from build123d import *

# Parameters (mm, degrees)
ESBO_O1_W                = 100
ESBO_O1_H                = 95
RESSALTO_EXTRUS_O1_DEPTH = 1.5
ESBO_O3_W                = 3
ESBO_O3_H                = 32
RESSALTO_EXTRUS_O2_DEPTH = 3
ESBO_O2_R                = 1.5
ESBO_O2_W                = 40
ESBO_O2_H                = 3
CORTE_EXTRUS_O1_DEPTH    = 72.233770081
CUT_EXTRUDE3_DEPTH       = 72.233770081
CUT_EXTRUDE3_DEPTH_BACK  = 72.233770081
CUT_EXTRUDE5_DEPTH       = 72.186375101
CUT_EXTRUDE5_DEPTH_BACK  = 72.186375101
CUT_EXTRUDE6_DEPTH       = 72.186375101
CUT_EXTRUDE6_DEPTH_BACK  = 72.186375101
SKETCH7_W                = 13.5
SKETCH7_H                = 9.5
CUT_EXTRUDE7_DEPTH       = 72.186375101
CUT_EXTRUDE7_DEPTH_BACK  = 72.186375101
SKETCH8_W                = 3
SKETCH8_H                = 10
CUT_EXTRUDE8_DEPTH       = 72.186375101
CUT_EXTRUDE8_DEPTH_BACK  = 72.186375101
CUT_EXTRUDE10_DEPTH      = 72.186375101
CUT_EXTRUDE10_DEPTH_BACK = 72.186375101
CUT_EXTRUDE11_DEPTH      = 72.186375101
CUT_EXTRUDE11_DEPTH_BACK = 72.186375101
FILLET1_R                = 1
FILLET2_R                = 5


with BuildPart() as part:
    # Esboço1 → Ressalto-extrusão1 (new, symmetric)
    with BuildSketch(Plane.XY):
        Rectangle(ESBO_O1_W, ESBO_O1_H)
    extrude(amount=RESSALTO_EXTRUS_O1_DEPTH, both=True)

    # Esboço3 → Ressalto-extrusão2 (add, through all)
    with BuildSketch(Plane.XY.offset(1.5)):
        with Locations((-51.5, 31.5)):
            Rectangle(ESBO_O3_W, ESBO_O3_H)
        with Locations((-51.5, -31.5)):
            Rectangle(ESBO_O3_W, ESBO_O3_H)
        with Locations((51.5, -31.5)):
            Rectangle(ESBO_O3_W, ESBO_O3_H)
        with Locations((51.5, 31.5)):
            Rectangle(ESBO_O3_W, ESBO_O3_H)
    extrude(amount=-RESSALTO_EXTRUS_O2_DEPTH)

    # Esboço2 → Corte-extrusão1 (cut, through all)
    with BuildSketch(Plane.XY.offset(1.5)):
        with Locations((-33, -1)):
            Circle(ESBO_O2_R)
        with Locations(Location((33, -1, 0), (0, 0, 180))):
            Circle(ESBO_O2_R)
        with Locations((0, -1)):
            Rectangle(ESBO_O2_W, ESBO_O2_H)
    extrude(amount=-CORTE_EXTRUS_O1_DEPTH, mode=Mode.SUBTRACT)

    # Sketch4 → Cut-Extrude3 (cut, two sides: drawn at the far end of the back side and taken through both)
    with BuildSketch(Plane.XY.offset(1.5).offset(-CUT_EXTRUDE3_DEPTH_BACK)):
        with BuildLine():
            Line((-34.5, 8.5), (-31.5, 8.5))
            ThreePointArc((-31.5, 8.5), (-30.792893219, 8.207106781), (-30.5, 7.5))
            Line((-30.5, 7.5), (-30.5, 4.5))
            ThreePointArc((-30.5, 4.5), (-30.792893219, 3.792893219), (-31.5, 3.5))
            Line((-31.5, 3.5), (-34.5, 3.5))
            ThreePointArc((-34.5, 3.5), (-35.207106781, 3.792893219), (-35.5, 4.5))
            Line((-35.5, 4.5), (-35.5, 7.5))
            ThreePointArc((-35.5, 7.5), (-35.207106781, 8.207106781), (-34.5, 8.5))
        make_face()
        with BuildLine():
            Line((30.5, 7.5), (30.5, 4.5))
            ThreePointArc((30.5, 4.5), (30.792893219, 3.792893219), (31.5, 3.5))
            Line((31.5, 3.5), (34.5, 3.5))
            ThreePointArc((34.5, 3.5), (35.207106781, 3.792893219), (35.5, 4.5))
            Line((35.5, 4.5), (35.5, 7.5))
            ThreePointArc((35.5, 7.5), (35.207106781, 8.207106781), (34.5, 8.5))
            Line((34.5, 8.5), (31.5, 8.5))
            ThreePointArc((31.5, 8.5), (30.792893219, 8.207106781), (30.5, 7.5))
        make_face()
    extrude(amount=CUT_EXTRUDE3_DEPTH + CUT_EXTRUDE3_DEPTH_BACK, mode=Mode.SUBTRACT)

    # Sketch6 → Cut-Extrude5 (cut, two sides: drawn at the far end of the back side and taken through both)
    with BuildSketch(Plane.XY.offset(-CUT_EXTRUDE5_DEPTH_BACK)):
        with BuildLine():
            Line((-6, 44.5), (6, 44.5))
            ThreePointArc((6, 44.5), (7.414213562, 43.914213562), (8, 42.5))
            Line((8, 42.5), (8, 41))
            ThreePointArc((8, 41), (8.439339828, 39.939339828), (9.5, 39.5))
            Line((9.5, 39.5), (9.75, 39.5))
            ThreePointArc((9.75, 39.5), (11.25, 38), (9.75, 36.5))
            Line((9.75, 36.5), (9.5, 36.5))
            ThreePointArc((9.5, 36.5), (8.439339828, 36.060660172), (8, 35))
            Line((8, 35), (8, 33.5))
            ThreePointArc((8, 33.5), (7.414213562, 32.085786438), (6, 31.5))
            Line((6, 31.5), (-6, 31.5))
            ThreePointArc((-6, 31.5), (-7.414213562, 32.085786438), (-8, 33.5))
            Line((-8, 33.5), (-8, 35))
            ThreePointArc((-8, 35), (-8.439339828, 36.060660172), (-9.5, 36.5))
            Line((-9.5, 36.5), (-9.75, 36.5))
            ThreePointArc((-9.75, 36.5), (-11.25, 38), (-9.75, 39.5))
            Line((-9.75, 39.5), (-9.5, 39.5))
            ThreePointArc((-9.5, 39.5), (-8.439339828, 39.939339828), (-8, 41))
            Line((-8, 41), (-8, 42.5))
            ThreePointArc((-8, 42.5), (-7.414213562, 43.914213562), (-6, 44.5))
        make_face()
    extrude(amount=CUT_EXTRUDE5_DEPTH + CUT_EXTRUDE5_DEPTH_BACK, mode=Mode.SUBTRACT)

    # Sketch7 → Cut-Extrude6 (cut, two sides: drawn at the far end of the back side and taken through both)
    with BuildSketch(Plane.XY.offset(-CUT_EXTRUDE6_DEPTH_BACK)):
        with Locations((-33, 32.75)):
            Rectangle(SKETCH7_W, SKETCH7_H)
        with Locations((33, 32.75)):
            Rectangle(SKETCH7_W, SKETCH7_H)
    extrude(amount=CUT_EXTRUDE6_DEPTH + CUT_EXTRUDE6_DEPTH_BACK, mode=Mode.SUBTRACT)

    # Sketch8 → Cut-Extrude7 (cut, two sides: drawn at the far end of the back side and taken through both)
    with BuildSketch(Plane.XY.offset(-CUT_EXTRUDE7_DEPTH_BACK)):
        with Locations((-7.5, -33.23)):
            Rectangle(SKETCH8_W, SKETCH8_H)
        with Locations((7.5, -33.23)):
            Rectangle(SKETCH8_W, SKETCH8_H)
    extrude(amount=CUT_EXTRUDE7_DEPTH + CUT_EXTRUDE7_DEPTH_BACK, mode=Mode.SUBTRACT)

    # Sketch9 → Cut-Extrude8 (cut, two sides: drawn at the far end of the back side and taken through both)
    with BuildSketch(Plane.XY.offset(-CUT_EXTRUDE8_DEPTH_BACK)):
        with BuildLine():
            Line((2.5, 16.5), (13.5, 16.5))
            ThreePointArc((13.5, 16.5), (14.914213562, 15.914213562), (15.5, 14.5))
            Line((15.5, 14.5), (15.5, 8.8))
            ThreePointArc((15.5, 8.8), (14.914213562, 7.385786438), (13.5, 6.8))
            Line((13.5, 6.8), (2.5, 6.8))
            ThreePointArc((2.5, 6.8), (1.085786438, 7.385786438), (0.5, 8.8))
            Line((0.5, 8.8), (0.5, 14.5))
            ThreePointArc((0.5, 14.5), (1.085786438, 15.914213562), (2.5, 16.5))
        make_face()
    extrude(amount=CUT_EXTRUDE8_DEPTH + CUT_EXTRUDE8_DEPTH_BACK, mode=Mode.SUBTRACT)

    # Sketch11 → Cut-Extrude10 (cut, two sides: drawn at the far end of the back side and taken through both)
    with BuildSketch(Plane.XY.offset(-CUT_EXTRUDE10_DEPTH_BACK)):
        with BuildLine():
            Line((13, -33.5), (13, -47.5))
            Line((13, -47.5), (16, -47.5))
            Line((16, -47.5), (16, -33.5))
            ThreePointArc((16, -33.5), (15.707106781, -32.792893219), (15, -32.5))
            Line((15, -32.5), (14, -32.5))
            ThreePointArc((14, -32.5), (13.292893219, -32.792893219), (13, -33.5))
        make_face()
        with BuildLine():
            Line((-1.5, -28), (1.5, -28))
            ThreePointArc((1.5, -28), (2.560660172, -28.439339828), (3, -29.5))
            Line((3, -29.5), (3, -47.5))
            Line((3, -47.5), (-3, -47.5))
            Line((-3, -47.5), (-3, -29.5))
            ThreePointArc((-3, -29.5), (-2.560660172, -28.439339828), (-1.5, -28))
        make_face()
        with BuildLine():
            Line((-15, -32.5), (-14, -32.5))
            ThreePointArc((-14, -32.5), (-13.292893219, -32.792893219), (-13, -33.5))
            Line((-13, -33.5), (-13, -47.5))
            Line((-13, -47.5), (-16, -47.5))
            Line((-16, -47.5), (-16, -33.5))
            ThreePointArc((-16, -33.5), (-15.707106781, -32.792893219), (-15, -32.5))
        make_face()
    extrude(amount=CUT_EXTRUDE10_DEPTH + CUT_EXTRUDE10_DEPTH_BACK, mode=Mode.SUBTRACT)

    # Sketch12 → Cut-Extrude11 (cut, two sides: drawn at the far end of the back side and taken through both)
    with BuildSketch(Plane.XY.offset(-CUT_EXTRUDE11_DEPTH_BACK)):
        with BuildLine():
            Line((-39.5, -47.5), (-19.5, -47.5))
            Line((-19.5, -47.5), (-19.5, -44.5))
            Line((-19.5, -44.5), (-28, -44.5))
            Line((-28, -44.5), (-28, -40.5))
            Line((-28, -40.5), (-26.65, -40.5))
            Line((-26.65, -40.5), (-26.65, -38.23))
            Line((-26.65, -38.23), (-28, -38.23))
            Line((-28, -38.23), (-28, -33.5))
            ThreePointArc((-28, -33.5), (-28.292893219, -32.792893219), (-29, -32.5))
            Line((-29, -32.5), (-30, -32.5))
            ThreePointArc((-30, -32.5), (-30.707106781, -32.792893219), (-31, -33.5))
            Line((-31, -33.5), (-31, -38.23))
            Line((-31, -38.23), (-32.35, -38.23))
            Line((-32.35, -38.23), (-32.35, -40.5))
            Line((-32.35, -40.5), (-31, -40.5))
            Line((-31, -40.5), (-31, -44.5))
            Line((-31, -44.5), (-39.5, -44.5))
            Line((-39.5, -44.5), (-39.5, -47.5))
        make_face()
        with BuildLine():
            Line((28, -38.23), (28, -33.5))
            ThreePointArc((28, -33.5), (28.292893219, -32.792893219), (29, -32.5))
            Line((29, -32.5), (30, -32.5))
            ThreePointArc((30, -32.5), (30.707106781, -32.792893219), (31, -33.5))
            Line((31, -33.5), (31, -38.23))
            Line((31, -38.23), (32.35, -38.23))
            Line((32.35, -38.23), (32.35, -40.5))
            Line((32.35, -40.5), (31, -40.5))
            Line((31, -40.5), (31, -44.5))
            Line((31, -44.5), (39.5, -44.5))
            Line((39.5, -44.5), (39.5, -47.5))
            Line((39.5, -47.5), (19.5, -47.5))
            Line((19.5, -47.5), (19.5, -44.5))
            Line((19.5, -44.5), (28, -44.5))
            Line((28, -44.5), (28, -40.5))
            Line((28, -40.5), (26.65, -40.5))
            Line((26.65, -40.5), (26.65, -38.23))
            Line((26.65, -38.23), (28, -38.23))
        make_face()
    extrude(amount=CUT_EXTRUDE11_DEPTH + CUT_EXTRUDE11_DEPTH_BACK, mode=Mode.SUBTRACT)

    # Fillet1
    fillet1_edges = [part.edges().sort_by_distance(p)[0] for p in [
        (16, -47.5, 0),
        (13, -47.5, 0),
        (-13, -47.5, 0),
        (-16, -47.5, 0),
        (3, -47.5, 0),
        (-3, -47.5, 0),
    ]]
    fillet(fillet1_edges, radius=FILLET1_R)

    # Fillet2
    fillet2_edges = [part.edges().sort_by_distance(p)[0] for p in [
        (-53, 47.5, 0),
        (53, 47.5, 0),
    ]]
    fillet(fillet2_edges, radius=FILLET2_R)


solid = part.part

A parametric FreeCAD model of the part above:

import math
import FreeCAD as App
import Part
import Sketcher

V = App.Vector


def edges_at(feature, points):
    """Names of the edges that pass closest to the given points."""
    edges = feature.Shape.Edges
    near = lambda p: min(range(len(edges)), key=lambda i: edges[i].distToShape(Part.Vertex(*p))[0])
    return sorted({f"Edge{near(p) + 1}" for p in points})


def add_polygon(sketch, points):
    """Adds a closed chain of lines whose ends are joined by coincident constraints."""
    first, n = sketch.GeometryCount, len(points)
    for a, b in zip(points, points[1:] + points[:1]):
        sketch.addGeometry(Part.LineSegment(App.Vector(*a, 0), App.Vector(*b, 0)), False)
    for i in range(n):
        sketch.addConstraint(Sketcher.Constraint("Coincident", first + i, 2, first + (i + 1) % n, 1))

doc = App.newDocument("Part")
params = doc.addObject("Spreadsheet::Sheet", "Params")
for row, (alias, value) in enumerate([
    ("sketch1_width", "100 mm"),
    ("sketch1_height", "95 mm"),
    ("pad1_length", "3 mm"),
    ("sketch2_width", "3 mm"),
    ("sketch2_height", "32 mm"),
    ("sketch3_diameter", "3 mm"),
    ("sketch3_width", "40 mm"),
    ("sketch3_height", "3 mm"),
    ("sketch4_radius", "1 mm"),
    ("sketch4_width", "3 mm"),
    ("sketch5_radius", "2 mm"),
    ("sketch5_radius2", "1.5 mm"),
    ("sketch5_width", "12 mm"),
    ("sketch5_height", "1.5 mm"),
    ("sketch5_width2", "0.25 mm"),
    ("sketch6_width", "13.5 mm"),
    ("sketch6_height", "9.5 mm"),
    ("sketch7_width", "3 mm"),
    ("sketch7_height", "10 mm"),
    ("sketch8_radius", "2 mm"),
    ("sketch8_width", "11 mm"),
    ("sketch8_height", "5.7 mm"),
    ("sketch9_radius", "1 mm"),
    ("sketch9_radius2", "1.5 mm"),
    ("sketch9_width", "3 mm"),
    ("sketch9_height", "14 mm"),
    ("sketch9_height2", "18 mm"),
    ("sketch10_radius", "1 mm"),
    ("sketch10_width", "20 mm"),
    ("sketch10_width2", "1 mm"),
    ("sketch10_height", "3 mm"),
    ("sketch10_height2", "4 mm"),
    ("fillet_radius", "1 mm"),
    ("fillet2_radius", "5 mm"),
], start=1):
    params.set(f"A{row}", alias)
    params.set(f"B{row}", "=" + value)
    params.setAlias(f"B{row}", alias)

body = doc.addObject("PartDesign::Body", "Body")

sketch1 = body.newObject("Sketcher::SketchObject", "Sketch")
sketch1.AttachmentSupport = (doc.getObject("XY_Plane"), [""])
sketch1.MapMode = "FlatFace"
add_polygon(sketch1, [(-50, 47.5), (-50, -47.5), (50, -47.5), (50, 47.5)])
sketch1.addConstraint(Sketcher.Constraint("Vertical", 0))
sketch1.addConstraint(Sketcher.Constraint("Horizontal", 1))
sketch1.addConstraint(Sketcher.Constraint("Vertical", 2))
sketch1.addConstraint(Sketcher.Constraint("Horizontal", 3))
sketch1.addConstraint(Sketcher.Constraint("Symmetric", 0, 2, 2, 2, -1, 1))
sketch1.addConstraint(Sketcher.Constraint("DistanceX", 1, 1, 1, 2, 100.0))
sketch1.addConstraint(Sketcher.Constraint("DistanceY", 0, 2, 0, 1, 95.0))
sketch1.setExpression("Constraints[9]", "Params.sketch1_width")
sketch1.setExpression("Constraints[10]", "Params.sketch1_height")
pad1 = body.newObject("PartDesign::Pad", "Pad")
pad1.Profile = sketch1
pad1.setExpression("Length", "Params.pad1_length")
pad1.Midplane = True

sketch2 = body.newObject("Sketcher::SketchObject", "Sketch001")
sketch2.AttachmentSupport = (doc.getObject("XY_Plane"), [""])
sketch2.MapMode = "FlatFace"
sketch2.AttachmentOffset = App.Placement(V(0, 0, 1.5), App.Rotation())
add_polygon(sketch2, [(-53, 47.5), (-53, 15.5), (-50, 15.5), (-50, 47.5)])
add_polygon(sketch2, [(-53, -15.5), (-53, -47.5), (-50, -47.5), (-50, -15.5)])
add_polygon(sketch2, [(50, -15.5), (50, -47.5), (53, -47.5), (53, -15.5)])
add_polygon(sketch2, [(50, 47.5), (50, 15.5), (53, 15.5), (53, 47.5)])
sketch2.addConstraint(Sketcher.Constraint("Vertical", 0))
sketch2.addConstraint(Sketcher.Constraint("Horizontal", 1))
sketch2.addConstraint(Sketcher.Constraint("Vertical", 2))
sketch2.addConstraint(Sketcher.Constraint("Horizontal", 3))
sketch2.addConstraint(Sketcher.Constraint("Vertical", 4))
sketch2.addConstraint(Sketcher.Constraint("Horizontal", 5))
sketch2.addConstraint(Sketcher.Constraint("Vertical", 6))
sketch2.addConstraint(Sketcher.Constraint("Horizontal", 7))
sketch2.addConstraint(Sketcher.Constraint("Vertical", 8))
sketch2.addConstraint(Sketcher.Constraint("Horizontal", 9))
sketch2.addConstraint(Sketcher.Constraint("Vertical", 10))
sketch2.addConstraint(Sketcher.Constraint("Horizontal", 11))
sketch2.addConstraint(Sketcher.Constraint("Vertical", 12))
sketch2.addConstraint(Sketcher.Constraint("Horizontal", 13))
sketch2.addConstraint(Sketcher.Constraint("Vertical", 14))
sketch2.addConstraint(Sketcher.Constraint("Horizontal", 15))
sketch2.addConstraint(Sketcher.Constraint("Symmetric", 2, 2, 8, 2, -1, 1))
sketch2.addConstraint(Sketcher.Constraint("Symmetric", 0, 2, 10, 2, -1, 1))
sketch2.addConstraint(Sketcher.Constraint("Symmetric", 6, 2, 12, 2, -1, 1))
sketch2.addConstraint(Sketcher.Constraint("Symmetric", 4, 2, 14, 2, -1, 1))
sketch2.addConstraint(Sketcher.Constraint("Symmetric", 5, 2, 8, 2, -2))
sketch2.addConstraint(Sketcher.Constraint("Symmetric", 7, 2, 10, 2, -2))
sketch2.addConstraint(Sketcher.Constraint("DistanceX", 1, 1, 1, 2, 3.0))
sketch2.addConstraint(Sketcher.Constraint("DistanceY", 0, 2, 0, 1, 32.0))
sketch2.addConstraint(Sketcher.Constraint("DistanceX", 0, 2, -1, 1, 53.0))
sketch2.addConstraint(Sketcher.Constraint("DistanceY", 4, 2, 0, 2, 63.0))
sketch2.setExpression("Constraints[38]", "Params.sketch2_width")
sketch2.setExpression("Constraints[39]", "Params.sketch2_height")
pad2 = body.newObject("PartDesign::Pad", "Pad001")
pad2.Profile = sketch2
pad2.Type = "UpToLast"
pad2.Reversed = True

sketch3 = body.newObject("Sketcher::SketchObject", "Sketch002")
sketch3.AttachmentSupport = (doc.getObject("XY_Plane"), [""])
sketch3.MapMode = "FlatFace"
sketch3.AttachmentOffset = App.Placement(V(0, 0, 1.5), App.Rotation())
sketch3.addGeometry(Part.Circle(V(-33, -1, 0), V(0, 0, 1), 1.5), False)
sketch3.addGeometry(Part.Circle(V(33, -1, 0), V(0, 0, 1), 1.5), False)
add_polygon(sketch3, [(-20, 0.5), (-20, -2.5), (20, -2.5), (20, 0.5)])
sketch3.addConstraint(Sketcher.Constraint("Vertical", 2))
sketch3.addConstraint(Sketcher.Constraint("Horizontal", 3))
sketch3.addConstraint(Sketcher.Constraint("Vertical", 4))
sketch3.addConstraint(Sketcher.Constraint("Horizontal", 5))
sketch3.addConstraint(Sketcher.Constraint("Equal", 0, 1))
sketch3.addConstraint(Sketcher.Constraint("Symmetric", 0, 3, 1, 3, -2))
sketch3.addConstraint(Sketcher.Constraint("Diameter", 0, 3.0))
sketch3.addConstraint(Sketcher.Constraint("DistanceX", 3, 1, 3, 2, 40.0))
sketch3.addConstraint(Sketcher.Constraint("DistanceY", 2, 2, 2, 1, 3.0))
sketch3.addConstraint(Sketcher.Constraint("DistanceX", 0, 3, -1, 1, 33.0))
sketch3.addConstraint(Sketcher.Constraint("DistanceY", 0, 3, -1, 1, 1.0))
sketch3.addConstraint(Sketcher.Constraint("DistanceX", 2, 2, -1, 1, 20.0))
sketch3.addConstraint(Sketcher.Constraint("DistanceY", 2, 2, -1, 1, 2.5))
sketch3.setExpression("Constraints[10]", "Params.sketch3_diameter")
sketch3.setExpression("Constraints[11]", "Params.sketch3_width")
sketch3.setExpression("Constraints[12]", "Params.sketch3_height")
pocket1 = body.newObject("PartDesign::Pocket", "Pocket")
pocket1.Profile = sketch3
pocket1.Type = "ThroughAll"

sketch4 = body.newObject("Sketcher::SketchObject", "Sketch003")
sketch4.AttachmentSupport = (doc.getObject("XY_Plane"), [""])
sketch4.MapMode = "FlatFace"
sketch4.AttachmentOffset = App.Placement(V(0, 0, 1.5), App.Rotation())
sketch4.addGeometry(Part.LineSegment(V(-31.5, 8.5, 0), V(-34.5, 8.5, 0)), False)
sketch4.addGeometry(Part.ArcOfCircle(Part.Circle(V(-34.5, 7.5, 0), V(0, 0, 1), 1), math.radians(90), math.radians(180)), False)
sketch4.addGeometry(Part.LineSegment(V(-35.5, 7.5, 0), V(-35.5, 4.5, 0)), False)
sketch4.addGeometry(Part.ArcOfCircle(Part.Circle(V(-34.5, 4.5, 0), V(0, 0, 1), 1), math.radians(-180), math.radians(-90)), False)
sketch4.addGeometry(Part.LineSegment(V(-34.5, 3.5, 0), V(-31.5, 3.5, 0)), False)
sketch4.addGeometry(Part.ArcOfCircle(Part.Circle(V(-31.5, 4.5, 0), V(0, 0, 1), 1), math.radians(-90), math.radians(0)), False)
sketch4.addGeometry(Part.LineSegment(V(-30.5, 4.5, 0), V(-30.5, 7.5, 0)), False)
sketch4.addGeometry(Part.ArcOfCircle(Part.Circle(V(-31.5, 7.5, 0), V(0, 0, 1), 1), math.radians(0), math.radians(90)), False)
sketch4.addGeometry(Part.LineSegment(V(30.5, 7.5, 0), V(30.5, 4.5, 0)), False)
sketch4.addGeometry(Part.ArcOfCircle(Part.Circle(V(31.5, 4.5, 0), V(0, 0, 1), 1), math.radians(-180), math.radians(-90)), False)
sketch4.addGeometry(Part.LineSegment(V(31.5, 3.5, 0), V(34.5, 3.5, 0)), False)
sketch4.addGeometry(Part.ArcOfCircle(Part.Circle(V(34.5, 4.5, 0), V(0, 0, 1), 1), math.radians(-90), math.radians(0)), False)
sketch4.addGeometry(Part.LineSegment(V(35.5, 4.5, 0), V(35.5, 7.5, 0)), False)
sketch4.addGeometry(Part.ArcOfCircle(Part.Circle(V(34.5, 7.5, 0), V(0, 0, 1), 1), math.radians(0), math.radians(90)), False)
sketch4.addGeometry(Part.LineSegment(V(34.5, 8.5, 0), V(31.5, 8.5, 0)), False)
sketch4.addGeometry(Part.ArcOfCircle(Part.Circle(V(31.5, 7.5, 0), V(0, 0, 1), 1), math.radians(90), math.radians(180)), False)
sketch4.addConstraint(Sketcher.Constraint("Tangent", 0, 2, 1, 1))
sketch4.addConstraint(Sketcher.Constraint("Tangent", 1, 2, 2, 1))
sketch4.addConstraint(Sketcher.Constraint("Tangent", 2, 2, 3, 1))
sketch4.addConstraint(Sketcher.Constraint("Tangent", 3, 2, 4, 1))
sketch4.addConstraint(Sketcher.Constraint("Tangent", 4, 2, 5, 1))
sketch4.addConstraint(Sketcher.Constraint("Tangent", 5, 2, 6, 1))
sketch4.addConstraint(Sketcher.Constraint("Tangent", 6, 2, 7, 1))
sketch4.addConstraint(Sketcher.Constraint("Tangent", 7, 2, 0, 1))
sketch4.addConstraint(Sketcher.Constraint("Tangent", 8, 2, 9, 1))
sketch4.addConstraint(Sketcher.Constraint("Tangent", 9, 2, 10, 1))
sketch4.addConstraint(Sketcher.Constraint("Tangent", 10, 2, 11, 1))
sketch4.addConstraint(Sketcher.Constraint("Tangent", 11, 2, 12, 1))
sketch4.addConstraint(Sketcher.Constraint("Tangent", 12, 2, 13, 1))
sketch4.addConstraint(Sketcher.Constraint("Tangent", 13, 2, 14, 1))
sketch4.addConstraint(Sketcher.Constraint("Tangent", 14, 2, 15, 1))
sketch4.addConstraint(Sketcher.Constraint("Tangent", 15, 2, 8, 1))
sketch4.addConstraint(Sketcher.Constraint("Horizontal", 0))
sketch4.addConstraint(Sketcher.Constraint("Vertical", 2))
sketch4.addConstraint(Sketcher.Constraint("Horizontal", 4))
sketch4.addConstraint(Sketcher.Constraint("Vertical", 6))
sketch4.addConstraint(Sketcher.Constraint("Vertical", 8))
sketch4.addConstraint(Sketcher.Constraint("Horizontal", 10))
sketch4.addConstraint(Sketcher.Constraint("Vertical", 12))
sketch4.addConstraint(Sketcher.Constraint("Horizontal", 14))
sketch4.addConstraint(Sketcher.Constraint("Equal", 1, 3))
sketch4.addConstraint(Sketcher.Constraint("Equal", 3, 5))
sketch4.addConstraint(Sketcher.Constraint("Equal", 5, 7))
sketch4.addConstraint(Sketcher.Constraint("Equal", 7, 9))
sketch4.addConstraint(Sketcher.Constraint("Equal", 9, 11))
sketch4.addConstraint(Sketcher.Constraint("Equal", 11, 13))
sketch4.addConstraint(Sketcher.Constraint("Equal", 13, 15))
sketch4.addConstraint(Sketcher.Constraint("Symmetric", 5, 3, 9, 3, -2))
sketch4.addConstraint(Sketcher.Constraint("Symmetric", 1, 3, 13, 3, -2))
sketch4.addConstraint(Sketcher.Constraint("Equal", 14, 2))
sketch4.addConstraint(Sketcher.Constraint("Radius", 1, 1.0))
sketch4.addConstraint(Sketcher.Constraint("DistanceX", 0, 2, 0, 1, 3.0))
sketch4.addConstraint(Sketcher.Constraint("DistanceX", 5, 3, 9, 3, 63.0))
sketch4.addConstraint(Sketcher.Constraint("DistanceY", -1, 1, 1, 3, 7.5))
sketch4.setExpression("Constraints[34]", "Params.sketch4_radius")
sketch4.setExpression("Constraints[35]", "Params.sketch4_width")
pocket2 = body.newObject("PartDesign::Pocket", "Pocket001")
pocket2.Profile = sketch4
pocket2.Type = "ThroughAll"
pocket2.Midplane = True

sketch5 = body.newObject("Sketcher::SketchObject", "Sketch004")
sketch5.AttachmentSupport = (doc.getObject("XY_Plane"), [""])
sketch5.MapMode = "FlatFace"
sketch5.addGeometry(Part.LineSegment(V(6, 44.5, 0), V(-6, 44.5, 0)), False)
sketch5.addGeometry(Part.ArcOfCircle(Part.Circle(V(-6, 42.5, 0), V(0, 0, 1), 2), math.radians(90), math.radians(180)), False)
sketch5.addGeometry(Part.LineSegment(V(-8, 42.5, 0), V(-8, 41, 0)), False)
sketch5.addGeometry(Part.ArcOfCircle(Part.Circle(V(-9.5, 41, 0), V(0, 0, 1), 1.5), math.radians(-90), math.radians(0)), False)
sketch5.addGeometry(Part.LineSegment(V(-9.5, 39.5, 0), V(-9.75, 39.5, 0)), False)
sketch5.addGeometry(Part.ArcOfCircle(Part.Circle(V(-9.75, 38, 0), V(0, 0, 1), 1.5), math.radians(90), math.radians(270)), False)
sketch5.addGeometry(Part.LineSegment(V(-9.75, 36.5, 0), V(-9.5, 36.5, 0)), False)
sketch5.addGeometry(Part.ArcOfCircle(Part.Circle(V(-9.5, 35, 0), V(0, 0, 1), 1.5), math.radians(0), math.radians(90)), False)
sketch5.addGeometry(Part.LineSegment(V(-8, 35, 0), V(-8, 33.5, 0)), False)
sketch5.addGeometry(Part.ArcOfCircle(Part.Circle(V(-6, 33.5, 0), V(0, 0, 1), 2), math.radians(-180), math.radians(-90)), False)
sketch5.addGeometry(Part.LineSegment(V(-6, 31.5, 0), V(6, 31.5, 0)), False)
sketch5.addGeometry(Part.ArcOfCircle(Part.Circle(V(6, 33.5, 0), V(0, 0, 1), 2), math.radians(-90), math.radians(0)), False)
sketch5.addGeometry(Part.LineSegment(V(8, 33.5, 0), V(8, 35, 0)), False)
sketch5.addGeometry(Part.ArcOfCircle(Part.Circle(V(9.5, 35, 0), V(0, 0, 1), 1.5), math.radians(90), math.radians(180)), False)
sketch5.addGeometry(Part.LineSegment(V(9.5, 36.5, 0), V(9.75, 36.5, 0)), False)
sketch5.addGeometry(Part.ArcOfCircle(Part.Circle(V(9.75, 38, 0), V(0, 0, 1), 1.5), math.radians(-90), math.radians(90)), False)
sketch5.addGeometry(Part.LineSegment(V(9.75, 39.5, 0), V(9.5, 39.5, 0)), False)
sketch5.addGeometry(Part.ArcOfCircle(Part.Circle(V(9.5, 41, 0), V(0, 0, 1), 1.5), math.radians(180), math.radians(270)), False)
sketch5.addGeometry(Part.LineSegment(V(8, 41, 0), V(8, 42.5, 0)), False)
sketch5.addGeometry(Part.ArcOfCircle(Part.Circle(V(6, 42.5, 0), V(0, 0, 1), 2), math.radians(0), math.radians(90)), False)
sketch5.addConstraint(Sketcher.Constraint("Tangent", 0, 2, 1, 1))
sketch5.addConstraint(Sketcher.Constraint("Tangent", 1, 2, 2, 1))
sketch5.addConstraint(Sketcher.Constraint("Tangent", 2, 2, 3, 2))
sketch5.addConstraint(Sketcher.Constraint("Tangent", 3, 1, 4, 1))
sketch5.addConstraint(Sketcher.Constraint("Tangent", 4, 2, 5, 1))
sketch5.addConstraint(Sketcher.Constraint("Tangent", 5, 2, 6, 1))
sketch5.addConstraint(Sketcher.Constraint("Tangent", 6, 2, 7, 2))
sketch5.addConstraint(Sketcher.Constraint("Tangent", 7, 1, 8, 1))
sketch5.addConstraint(Sketcher.Constraint("Tangent", 8, 2, 9, 1))
sketch5.addConstraint(Sketcher.Constraint("Tangent", 9, 2, 10, 1))
sketch5.addConstraint(Sketcher.Constraint("Tangent", 10, 2, 11, 1))
sketch5.addConstraint(Sketcher.Constraint("Tangent", 11, 2, 12, 1))
sketch5.addConstraint(Sketcher.Constraint("Tangent", 12, 2, 13, 2))
sketch5.addConstraint(Sketcher.Constraint("Tangent", 13, 1, 14, 1))
sketch5.addConstraint(Sketcher.Constraint("Tangent", 14, 2, 15, 1))
sketch5.addConstraint(Sketcher.Constraint("Tangent", 15, 2, 16, 1))
sketch5.addConstraint(Sketcher.Constraint("Tangent", 16, 2, 17, 2))
sketch5.addConstraint(Sketcher.Constraint("Tangent", 17, 1, 18, 1))
sketch5.addConstraint(Sketcher.Constraint("Tangent", 18, 2, 19, 1))
sketch5.addConstraint(Sketcher.Constraint("Tangent", 19, 2, 0, 1))
sketch5.addConstraint(Sketcher.Constraint("Horizontal", 0))
sketch5.addConstraint(Sketcher.Constraint("Vertical", 2))
sketch5.addConstraint(Sketcher.Constraint("Horizontal", 4))
sketch5.addConstraint(Sketcher.Constraint("Horizontal", 6))
sketch5.addConstraint(Sketcher.Constraint("Vertical", 8))
sketch5.addConstraint(Sketcher.Constraint("Horizontal", 10))
sketch5.addConstraint(Sketcher.Constraint("Vertical", 12))
sketch5.addConstraint(Sketcher.Constraint("Horizontal", 14))
sketch5.addConstraint(Sketcher.Constraint("Horizontal", 16))
sketch5.addConstraint(Sketcher.Constraint("Vertical", 18))
sketch5.addConstraint(Sketcher.Constraint("Equal", 3, 5))
sketch5.addConstraint(Sketcher.Constraint("Equal", 5, 7))
sketch5.addConstraint(Sketcher.Constraint("Equal", 1, 9))
sketch5.addConstraint(Sketcher.Constraint("Equal", 9, 11))
sketch5.addConstraint(Sketcher.Constraint("Equal", 7, 13))
sketch5.addConstraint(Sketcher.Constraint("Equal", 13, 15))
sketch5.addConstraint(Sketcher.Constraint("Equal", 15, 17))
sketch5.addConstraint(Sketcher.Constraint("Equal", 11, 19))
sketch5.addConstraint(Sketcher.Constraint("Symmetric", 7, 3, 13, 3, -2))
sketch5.addConstraint(Sketcher.Constraint("Vertical", 3, 3, 7, 3))
sketch5.addConstraint(Sketcher.Constraint("Vertical", 13, 3, 17, 3))
sketch5.addConstraint(Sketcher.Constraint("Equal", 6, 14))
sketch5.addConstraint(Sketcher.Constraint("Equal", 2, 8))
sketch5.addConstraint(Sketcher.Constraint("Radius", 1, 2.0))
sketch5.addConstraint(Sketcher.Constraint("Radius", 3, 1.5))
sketch5.addConstraint(Sketcher.Constraint("DistanceX", 0, 2, 0, 1, 12.0))
sketch5.addConstraint(Sketcher.Constraint("DistanceY", 2, 2, 2, 1, 1.5))
sketch5.addConstraint(Sketcher.Constraint("DistanceY", -1, 1, 3, 3, 41.0))
sketch5.addConstraint(Sketcher.Constraint("DistanceX", 4, 2, 4, 1, 0.25))
sketch5.setExpression("Constraints[43]", "Params.sketch5_radius")
sketch5.setExpression("Constraints[44]", "Params.sketch5_radius2")
sketch5.setExpression("Constraints[45]", "Params.sketch5_width")
sketch5.setExpression("Constraints[46]", "Params.sketch5_height")
sketch5.setExpression("Constraints[48]", "Params.sketch5_width2")
pocket3 = body.newObject("PartDesign::Pocket", "Pocket002")
pocket3.Profile = sketch5
pocket3.Type = "ThroughAll"
pocket3.Midplane = True

sketch6 = body.newObject("Sketcher::SketchObject", "Sketch005")
sketch6.AttachmentSupport = (doc.getObject("XY_Plane"), [""])
sketch6.MapMode = "FlatFace"
add_polygon(sketch6, [(-39.75, 37.5), (-39.75, 28), (-26.25, 28), (-26.25, 37.5)])
add_polygon(sketch6, [(26.25, 37.5), (26.25, 28), (39.75, 28), (39.75, 37.5)])
sketch6.addConstraint(Sketcher.Constraint("Vertical", 0))
sketch6.addConstraint(Sketcher.Constraint("Horizontal", 1))
sketch6.addConstraint(Sketcher.Constraint("Vertical", 2))
sketch6.addConstraint(Sketcher.Constraint("Horizontal", 3))
sketch6.addConstraint(Sketcher.Constraint("Vertical", 4))
sketch6.addConstraint(Sketcher.Constraint("Horizontal", 5))
sketch6.addConstraint(Sketcher.Constraint("Vertical", 6))
sketch6.addConstraint(Sketcher.Constraint("Horizontal", 7))
sketch6.addConstraint(Sketcher.Constraint("Symmetric", 1, 2, 4, 2, -2))
sketch6.addConstraint(Sketcher.Constraint("Symmetric", 3, 2, 6, 2, -2))
sketch6.addConstraint(Sketcher.Constraint("DistanceX", 1, 1, 1, 2, 13.5))
sketch6.addConstraint(Sketcher.Constraint("DistanceY", 0, 2, 0, 1, 9.5))
sketch6.addConstraint(Sketcher.Constraint("DistanceY", -1, 1, 0, 2, 28.0))
sketch6.addConstraint(Sketcher.Constraint("DistanceX", 0, 2, 4, 2, 66.0))
sketch6.setExpression("Constraints[18]", "Params.sketch6_width")
sketch6.setExpression("Constraints[19]", "Params.sketch6_height")
pocket4 = body.newObject("PartDesign::Pocket", "Pocket003")
pocket4.Profile = sketch6
pocket4.Type = "ThroughAll"
pocket4.Midplane = True

sketch7 = body.newObject("Sketcher::SketchObject", "Sketch006")
sketch7.AttachmentSupport = (doc.getObject("XY_Plane"), [""])
sketch7.MapMode = "FlatFace"
add_polygon(sketch7, [(-9, -28.23), (-9, -38.23), (-6, -38.23), (-6, -28.23)])
add_polygon(sketch7, [(6, -28.23), (6, -38.23), (9, -38.23), (9, -28.23)])
sketch7.addConstraint(Sketcher.Constraint("Vertical", 0))
sketch7.addConstraint(Sketcher.Constraint("Horizontal", 1))
sketch7.addConstraint(Sketcher.Constraint("Vertical", 2))
sketch7.addConstraint(Sketcher.Constraint("Horizontal", 3))
sketch7.addConstraint(Sketcher.Constraint("Vertical", 4))
sketch7.addConstraint(Sketcher.Constraint("Horizontal", 5))
sketch7.addConstraint(Sketcher.Constraint("Vertical", 6))
sketch7.addConstraint(Sketcher.Constraint("Horizontal", 7))
sketch7.addConstraint(Sketcher.Constraint("Symmetric", 1, 2, 4, 2, -2))
sketch7.addConstraint(Sketcher.Constraint("Symmetric", 3, 2, 6, 2, -2))
sketch7.addConstraint(Sketcher.Constraint("DistanceX", 1, 1, 1, 2, 3.0))
sketch7.addConstraint(Sketcher.Constraint("DistanceY", 0, 2, 0, 1, 10.0))
sketch7.addConstraint(Sketcher.Constraint("DistanceX", 0, 2, -1, 1, 9.0))
sketch7.addConstraint(Sketcher.Constraint("DistanceY", 0, 2, -1, 1, 38.23))
sketch7.setExpression("Constraints[18]", "Params.sketch7_width")
sketch7.setExpression("Constraints[19]", "Params.sketch7_height")
pocket5 = body.newObject("PartDesign::Pocket", "Pocket004")
pocket5.Profile = sketch7
pocket5.Type = "ThroughAll"
pocket5.Midplane = True

sketch8 = body.newObject("Sketcher::SketchObject", "Sketch007")
sketch8.AttachmentSupport = (doc.getObject("XY_Plane"), [""])
sketch8.MapMode = "FlatFace"
sketch8.addGeometry(Part.LineSegment(V(13.5, 16.5, 0), V(2.5, 16.5, 0)), False)
sketch8.addGeometry(Part.ArcOfCircle(Part.Circle(V(2.5, 14.5, 0), V(0, 0, 1), 2), math.radians(90), math.radians(180)), False)
sketch8.addGeometry(Part.LineSegment(V(0.5, 14.5, 0), V(0.5, 8.8, 0)), False)
sketch8.addGeometry(Part.ArcOfCircle(Part.Circle(V(2.5, 8.8, 0), V(0, 0, 1), 2), math.radians(-180), math.radians(-90)), False)
sketch8.addGeometry(Part.LineSegment(V(2.5, 6.8, 0), V(13.5, 6.8, 0)), False)
sketch8.addGeometry(Part.ArcOfCircle(Part.Circle(V(13.5, 8.8, 0), V(0, 0, 1), 2), math.radians(-90), math.radians(0)), False)
sketch8.addGeometry(Part.LineSegment(V(15.5, 8.8, 0), V(15.5, 14.5, 0)), False)
sketch8.addGeometry(Part.ArcOfCircle(Part.Circle(V(13.5, 14.5, 0), V(0, 0, 1), 2), math.radians(0), math.radians(90)), False)
sketch8.addConstraint(Sketcher.Constraint("Tangent", 0, 2, 1, 1))
sketch8.addConstraint(Sketcher.Constraint("Tangent", 1, 2, 2, 1))
sketch8.addConstraint(Sketcher.Constraint("Tangent", 2, 2, 3, 1))
sketch8.addConstraint(Sketcher.Constraint("Tangent", 3, 2, 4, 1))
sketch8.addConstraint(Sketcher.Constraint("Tangent", 4, 2, 5, 1))
sketch8.addConstraint(Sketcher.Constraint("Tangent", 5, 2, 6, 1))
sketch8.addConstraint(Sketcher.Constraint("Tangent", 6, 2, 7, 1))
sketch8.addConstraint(Sketcher.Constraint("Tangent", 7, 2, 0, 1))
sketch8.addConstraint(Sketcher.Constraint("Horizontal", 0))
sketch8.addConstraint(Sketcher.Constraint("Vertical", 2))
sketch8.addConstraint(Sketcher.Constraint("Horizontal", 4))
sketch8.addConstraint(Sketcher.Constraint("Vertical", 6))
sketch8.addConstraint(Sketcher.Constraint("Equal", 1, 3))
sketch8.addConstraint(Sketcher.Constraint("Equal", 3, 5))
sketch8.addConstraint(Sketcher.Constraint("Equal", 5, 7))
sketch8.addConstraint(Sketcher.Constraint("Radius", 1, 2.0))
sketch8.addConstraint(Sketcher.Constraint("DistanceX", 0, 2, 0, 1, 11.0))
sketch8.addConstraint(Sketcher.Constraint("DistanceY", 2, 2, 2, 1, 5.7))
sketch8.addConstraint(Sketcher.Constraint("DistanceX", -1, 1, 1, 3, 2.5))
sketch8.addConstraint(Sketcher.Constraint("DistanceY", -1, 1, 1, 3, 14.5))
sketch8.setExpression("Constraints[15]", "Params.sketch8_radius")
sketch8.setExpression("Constraints[16]", "Params.sketch8_width")
sketch8.setExpression("Constraints[17]", "Params.sketch8_height")
pocket6 = body.newObject("PartDesign::Pocket", "Pocket005")
pocket6.Profile = sketch8
pocket6.Type = "ThroughAll"
pocket6.Midplane = True

sketch9 = body.newObject("Sketcher::SketchObject", "Sketch008")
sketch9.AttachmentSupport = (doc.getObject("XY_Plane"), [""])
sketch9.MapMode = "FlatFace"
sketch9.addGeometry(Part.LineSegment(V(13, -33.5, 0), V(13, -47.5, 0)), False)
sketch9.addGeometry(Part.LineSegment(V(13, -47.5, 0), V(16, -47.5, 0)), False)
sketch9.addGeometry(Part.LineSegment(V(16, -47.5, 0), V(16, -33.5, 0)), False)
sketch9.addGeometry(Part.ArcOfCircle(Part.Circle(V(15, -33.5, 0), V(0, 0, 1), 1), math.radians(0), math.radians(90)), False)
sketch9.addGeometry(Part.LineSegment(V(15, -32.5, 0), V(14, -32.5, 0)), False)
sketch9.addGeometry(Part.ArcOfCircle(Part.Circle(V(14, -33.5, 0), V(0, 0, 1), 1), math.radians(90), math.radians(180)), False)
sketch9.addGeometry(Part.LineSegment(V(1.5, -28, 0), V(-1.5, -28, 0)), False)
sketch9.addGeometry(Part.ArcOfCircle(Part.Circle(V(-1.5, -29.5, 0), V(0, 0, 1), 1.5), math.radians(90), math.radians(180)), False)
sketch9.addGeometry(Part.LineSegment(V(-3, -29.5, 0), V(-3, -47.5, 0)), False)
sketch9.addGeometry(Part.LineSegment(V(-3, -47.5, 0), V(3, -47.5, 0)), False)
sketch9.addGeometry(Part.LineSegment(V(3, -47.5, 0), V(3, -29.5, 0)), False)
sketch9.addGeometry(Part.ArcOfCircle(Part.Circle(V(1.5, -29.5, 0), V(0, 0, 1), 1.5), math.radians(0), math.radians(90)), False)
sketch9.addGeometry(Part.LineSegment(V(-14, -32.5, 0), V(-15, -32.5, 0)), False)
sketch9.addGeometry(Part.ArcOfCircle(Part.Circle(V(-15, -33.5, 0), V(0, 0, 1), 1), math.radians(90), math.radians(180)), False)
sketch9.addGeometry(Part.LineSegment(V(-16, -33.5, 0), V(-16, -47.5, 0)), False)
sketch9.addGeometry(Part.LineSegment(V(-16, -47.5, 0), V(-13, -47.5, 0)), False)
sketch9.addGeometry(Part.LineSegment(V(-13, -47.5, 0), V(-13, -33.5, 0)), False)
sketch9.addGeometry(Part.ArcOfCircle(Part.Circle(V(-14, -33.5, 0), V(0, 0, 1), 1), math.radians(0), math.radians(90)), False)
sketch9.addConstraint(Sketcher.Constraint("Coincident", 0, 2, 1, 1))
sketch9.addConstraint(Sketcher.Constraint("Coincident", 1, 2, 2, 1))
sketch9.addConstraint(Sketcher.Constraint("Tangent", 2, 2, 3, 1))
sketch9.addConstraint(Sketcher.Constraint("Tangent", 3, 2, 4, 1))
sketch9.addConstraint(Sketcher.Constraint("Tangent", 4, 2, 5, 1))
sketch9.addConstraint(Sketcher.Constraint("Tangent", 5, 2, 0, 1))
sketch9.addConstraint(Sketcher.Constraint("Tangent", 6, 2, 7, 1))
sketch9.addConstraint(Sketcher.Constraint("Tangent", 7, 2, 8, 1))
sketch9.addConstraint(Sketcher.Constraint("Coincident", 8, 2, 9, 1))
sketch9.addConstraint(Sketcher.Constraint("Coincident", 9, 2, 10, 1))
sketch9.addConstraint(Sketcher.Constraint("Tangent", 10, 2, 11, 1))
sketch9.addConstraint(Sketcher.Constraint("Tangent", 11, 2, 6, 1))
sketch9.addConstraint(Sketcher.Constraint("Tangent", 12, 2, 13, 1))
sketch9.addConstraint(Sketcher.Constraint("Tangent", 13, 2, 14, 1))
sketch9.addConstraint(Sketcher.Constraint("Coincident", 14, 2, 15, 1))
sketch9.addConstraint(Sketcher.Constraint("Coincident", 15, 2, 16, 1))
sketch9.addConstraint(Sketcher.Constraint("Tangent", 16, 2, 17, 1))
sketch9.addConstraint(Sketcher.Constraint("Tangent", 17, 2, 12, 1))
sketch9.addConstraint(Sketcher.Constraint("Vertical", 0))
sketch9.addConstraint(Sketcher.Constraint("Horizontal", 1))
sketch9.addConstraint(Sketcher.Constraint("Vertical", 2))
sketch9.addConstraint(Sketcher.Constraint("Horizontal", 4))
sketch9.addConstraint(Sketcher.Constraint("Horizontal", 6))
sketch9.addConstraint(Sketcher.Constraint("Vertical", 8))
sketch9.addConstraint(Sketcher.Constraint("Horizontal", 9))
sketch9.addConstraint(Sketcher.Constraint("Vertical", 10))
sketch9.addConstraint(Sketcher.Constraint("Horizontal", 12))
sketch9.addConstraint(Sketcher.Constraint("Vertical", 14))
sketch9.addConstraint(Sketcher.Constraint("Horizontal", 15))
sketch9.addConstraint(Sketcher.Constraint("Vertical", 16))
sketch9.addConstraint(Sketcher.Constraint("Equal", 3, 5))
sketch9.addConstraint(Sketcher.Constraint("Equal", 7, 11))
sketch9.addConstraint(Sketcher.Constraint("Equal", 5, 13))
sketch9.addConstraint(Sketcher.Constraint("Equal", 13, 17))
sketch9.addConstraint(Sketcher.Constraint("Symmetric", 3, 3, 13, 3, -2))
sketch9.addConstraint(Sketcher.Constraint("Symmetric", 0, 2, 15, 2, -2))
sketch9.addConstraint(Sketcher.Constraint("Horizontal", 1, 2, 8, 2))
sketch9.addConstraint(Sketcher.Constraint("Equal", 1, 6))
sketch9.addConstraint(Sketcher.Constraint("Radius", 3, 1.0))
sketch9.addConstraint(Sketcher.Constraint("Radius", 7, 1.5))
sketch9.addConstraint(Sketcher.Constraint("DistanceX", 1, 1, 1, 2, 3.0))
sketch9.addConstraint(Sketcher.Constraint("DistanceY", 0, 2, 0, 1, 14.0))
sketch9.addConstraint(Sketcher.Constraint("DistanceY", 8, 2, 8, 1, 18.0))
sketch9.addConstraint(Sketcher.Constraint("DistanceX", -1, 1, 3, 3, 15.0))
sketch9.addConstraint(Sketcher.Constraint("DistanceY", 6, 2, -1, 1, 28.0))
sketch9.addConstraint(Sketcher.Constraint("DistanceX", 7, 2, -1, 1, 3.0))
sketch9.setExpression("Constraints[38]", "Params.sketch9_radius")
sketch9.setExpression("Constraints[39]", "Params.sketch9_radius2")
sketch9.setExpression("Constraints[40]", "Params.sketch9_width")
sketch9.setExpression("Constraints[41]", "Params.sketch9_height")
sketch9.setExpression("Constraints[42]", "Params.sketch9_height2")
pocket7 = body.newObject("PartDesign::Pocket", "Pocket006")
pocket7.Profile = sketch9
pocket7.Type = "ThroughAll"
pocket7.Midplane = True

sketch10 = body.newObject("Sketcher::SketchObject", "Sketch009")
sketch10.AttachmentSupport = (doc.getObject("XY_Plane"), [""])
sketch10.MapMode = "FlatFace"
sketch10.addGeometry(Part.LineSegment(V(-39.5, -47.5, 0), V(-19.5, -47.5, 0)), False)
sketch10.addGeometry(Part.LineSegment(V(-19.5, -47.5, 0), V(-19.5, -44.5, 0)), False)
sketch10.addGeometry(Part.LineSegment(V(-19.5, -44.5, 0), V(-28, -44.5, 0)), False)
sketch10.addGeometry(Part.LineSegment(V(-28, -44.5, 0), V(-28, -40.5, 0)), False)
sketch10.addGeometry(Part.LineSegment(V(-28, -40.5, 0), V(-26.65, -40.5, 0)), False)
sketch10.addGeometry(Part.LineSegment(V(-26.65, -40.5, 0), V(-26.65, -38.23, 0)), False)
sketch10.addGeometry(Part.LineSegment(V(-26.65, -38.23, 0), V(-28, -38.23, 0)), False)
sketch10.addGeometry(Part.LineSegment(V(-28, -38.23, 0), V(-28, -33.5, 0)), False)
sketch10.addGeometry(Part.ArcOfCircle(Part.Circle(V(-29, -33.5, 0), V(0, 0, 1), 1), math.radians(0), math.radians(90)), False)
sketch10.addGeometry(Part.LineSegment(V(-29, -32.5, 0), V(-30, -32.5, 0)), False)
sketch10.addGeometry(Part.ArcOfCircle(Part.Circle(V(-30, -33.5, 0), V(0, 0, 1), 1), math.radians(90), math.radians(180)), False)
sketch10.addGeometry(Part.LineSegment(V(-31, -33.5, 0), V(-31, -38.23, 0)), False)
sketch10.addGeometry(Part.LineSegment(V(-31, -38.23, 0), V(-32.35, -38.23, 0)), False)
sketch10.addGeometry(Part.LineSegment(V(-32.35, -38.23, 0), V(-32.35, -40.5, 0)), False)
sketch10.addGeometry(Part.LineSegment(V(-32.35, -40.5, 0), V(-31, -40.5, 0)), False)
sketch10.addGeometry(Part.LineSegment(V(-31, -40.5, 0), V(-31, -44.5, 0)), False)
sketch10.addGeometry(Part.LineSegment(V(-31, -44.5, 0), V(-39.5, -44.5, 0)), False)
sketch10.addGeometry(Part.LineSegment(V(-39.5, -44.5, 0), V(-39.5, -47.5, 0)), False)
sketch10.addGeometry(Part.LineSegment(V(28, -33.5, 0), V(28, -38.23, 0)), False)
sketch10.addGeometry(Part.LineSegment(V(28, -38.23, 0), V(26.65, -38.23, 0)), False)
sketch10.addGeometry(Part.LineSegment(V(26.65, -38.23, 0), V(26.65, -40.5, 0)), False)
sketch10.addGeometry(Part.LineSegment(V(26.65, -40.5, 0), V(28, -40.5, 0)), False)
sketch10.addGeometry(Part.LineSegment(V(28, -40.5, 0), V(28, -44.5, 0)), False)
sketch10.addGeometry(Part.LineSegment(V(28, -44.5, 0), V(19.5, -44.5, 0)), False)
sketch10.addGeometry(Part.LineSegment(V(19.5, -44.5, 0), V(19.5, -47.5, 0)), False)
sketch10.addGeometry(Part.LineSegment(V(19.5, -47.5, 0), V(39.5, -47.5, 0)), False)
sketch10.addGeometry(Part.LineSegment(V(39.5, -47.5, 0), V(39.5, -44.5, 0)), False)
sketch10.addGeometry(Part.LineSegment(V(39.5, -44.5, 0), V(31, -44.5, 0)), False)
sketch10.addGeometry(Part.LineSegment(V(31, -44.5, 0), V(31, -40.5, 0)), False)
sketch10.addGeometry(Part.LineSegment(V(31, -40.5, 0), V(32.35, -40.5, 0)), False)
sketch10.addGeometry(Part.LineSegment(V(32.35, -40.5, 0), V(32.35, -38.23, 0)), False)
sketch10.addGeometry(Part.LineSegment(V(32.35, -38.23, 0), V(31, -38.23, 0)), False)
sketch10.addGeometry(Part.LineSegment(V(31, -38.23, 0), V(31, -33.5, 0)), False)
sketch10.addGeometry(Part.ArcOfCircle(Part.Circle(V(30, -33.5, 0), V(0, 0, 1), 1), math.radians(0), math.radians(90)), False)
sketch10.addGeometry(Part.LineSegment(V(30, -32.5, 0), V(29, -32.5, 0)), False)
sketch10.addGeometry(Part.ArcOfCircle(Part.Circle(V(29, -33.5, 0), V(0, 0, 1), 1), math.radians(90), math.radians(180)), False)
sketch10.addConstraint(Sketcher.Constraint("Coincident", 0, 2, 1, 1))
sketch10.addConstraint(Sketcher.Constraint("Coincident", 1, 2, 2, 1))
sketch10.addConstraint(Sketcher.Constraint("Coincident", 2, 2, 3, 1))
sketch10.addConstraint(Sketcher.Constraint("Coincident", 3, 2, 4, 1))
sketch10.addConstraint(Sketcher.Constraint("Coincident", 4, 2, 5, 1))
sketch10.addConstraint(Sketcher.Constraint("Coincident", 5, 2, 6, 1))
sketch10.addConstraint(Sketcher.Constraint("Coincident", 6, 2, 7, 1))
sketch10.addConstraint(Sketcher.Constraint("Tangent", 7, 2, 8, 1))
sketch10.addConstraint(Sketcher.Constraint("Tangent", 8, 2, 9, 1))
sketch10.addConstraint(Sketcher.Constraint("Tangent", 9, 2, 10, 1))
sketch10.addConstraint(Sketcher.Constraint("Tangent", 10, 2, 11, 1))
sketch10.addConstraint(Sketcher.Constraint("Coincident", 11, 2, 12, 1))
sketch10.addConstraint(Sketcher.Constraint("Coincident", 12, 2, 13, 1))
sketch10.addConstraint(Sketcher.Constraint("Coincident", 13, 2, 14, 1))
sketch10.addConstraint(Sketcher.Constraint("Coincident", 14, 2, 15, 1))
sketch10.addConstraint(Sketcher.Constraint("Coincident", 15, 2, 16, 1))
sketch10.addConstraint(Sketcher.Constraint("Coincident", 16, 2, 17, 1))
sketch10.addConstraint(Sketcher.Constraint("Coincident", 17, 2, 0, 1))
sketch10.addConstraint(Sketcher.Constraint("Coincident", 18, 2, 19, 1))
sketch10.addConstraint(Sketcher.Constraint("Coincident", 19, 2, 20, 1))
sketch10.addConstraint(Sketcher.Constraint("Coincident", 20, 2, 21, 1))
sketch10.addConstraint(Sketcher.Constraint("Coincident", 21, 2, 22, 1))
sketch10.addConstraint(Sketcher.Constraint("Coincident", 22, 2, 23, 1))
sketch10.addConstraint(Sketcher.Constraint("Coincident", 23, 2, 24, 1))
sketch10.addConstraint(Sketcher.Constraint("Coincident", 24, 2, 25, 1))
sketch10.addConstraint(Sketcher.Constraint("Coincident", 25, 2, 26, 1))
sketch10.addConstraint(Sketcher.Constraint("Coincident", 26, 2, 27, 1))
sketch10.addConstraint(Sketcher.Constraint("Coincident", 27, 2, 28, 1))
sketch10.addConstraint(Sketcher.Constraint("Coincident", 28, 2, 29, 1))
sketch10.addConstraint(Sketcher.Constraint("Coincident", 29, 2, 30, 1))
sketch10.addConstraint(Sketcher.Constraint("Coincident", 30, 2, 31, 1))
sketch10.addConstraint(Sketcher.Constraint("Coincident", 31, 2, 32, 1))
sketch10.addConstraint(Sketcher.Constraint("Tangent", 32, 2, 33, 1))
sketch10.addConstraint(Sketcher.Constraint("Tangent", 33, 2, 34, 1))
sketch10.addConstraint(Sketcher.Constraint("Tangent", 34, 2, 35, 1))
sketch10.addConstraint(Sketcher.Constraint("Tangent", 35, 2, 18, 1))
sketch10.addConstraint(Sketcher.Constraint("Horizontal", 0))
sketch10.addConstraint(Sketcher.Constraint("Vertical", 1))
sketch10.addConstraint(Sketcher.Constraint("Horizontal", 2))
sketch10.addConstraint(Sketcher.Constraint("Vertical", 3))
sketch10.addConstraint(Sketcher.Constraint("Horizontal", 4))
sketch10.addConstraint(Sketcher.Constraint("Vertical", 5))
sketch10.addConstraint(Sketcher.Constraint("Horizontal", 6))
sketch10.addConstraint(Sketcher.Constraint("Vertical", 7))
sketch10.addConstraint(Sketcher.Constraint("Horizontal", 9))
sketch10.addConstraint(Sketcher.Constraint("Vertical", 11))
sketch10.addConstraint(Sketcher.Constraint("Horizontal", 12))
sketch10.addConstraint(Sketcher.Constraint("Vertical", 13))
sketch10.addConstraint(Sketcher.Constraint("Horizontal", 14))
sketch10.addConstraint(Sketcher.Constraint("Vertical", 15))
sketch10.addConstraint(Sketcher.Constraint("Horizontal", 16))
sketch10.addConstraint(Sketcher.Constraint("Vertical", 17))
sketch10.addConstraint(Sketcher.Constraint("Vertical", 18))
sketch10.addConstraint(Sketcher.Constraint("Horizontal", 19))
sketch10.addConstraint(Sketcher.Constraint("Vertical", 20))
sketch10.addConstraint(Sketcher.Constraint("Horizontal", 21))
sketch10.addConstraint(Sketcher.Constraint("Vertical", 22))
sketch10.addConstraint(Sketcher.Constraint("Horizontal", 23))
sketch10.addConstraint(Sketcher.Constraint("Vertical", 24))
sketch10.addConstraint(Sketcher.Constraint("Horizontal", 25))
sketch10.addConstraint(Sketcher.Constraint("Vertical", 26))
sketch10.addConstraint(Sketcher.Constraint("Horizontal", 27))
sketch10.addConstraint(Sketcher.Constraint("Vertical", 28))
sketch10.addConstraint(Sketcher.Constraint("Horizontal", 29))
sketch10.addConstraint(Sketcher.Constraint("Vertical", 30))
sketch10.addConstraint(Sketcher.Constraint("Horizontal", 31))
sketch10.addConstraint(Sketcher.Constraint("Vertical", 32))
sketch10.addConstraint(Sketcher.Constraint("Horizontal", 34))
sketch10.addConstraint(Sketcher.Constraint("Equal", 8, 10))
sketch10.addConstraint(Sketcher.Constraint("Equal", 10, 33))
sketch10.addConstraint(Sketcher.Constraint("Equal", 33, 35))
sketch10.addConstraint(Sketcher.Constraint("Symmetric", 10, 3, 33, 3, -2))
sketch10.addConstraint(Sketcher.Constraint("Symmetric", 6, 2, 18, 2, -2))
sketch10.addConstraint(Sketcher.Constraint("Symmetric", 4, 2, 20, 2, -2))
sketch10.addConstraint(Sketcher.Constraint("Symmetric", 2, 2, 22, 2, -2))
sketch10.addConstraint(Sketcher.Constraint("Symmetric", 0, 2, 24, 2, -2))
sketch10.addConstraint(Sketcher.Constraint("Symmetric", 16, 2, 26, 2, -2))
sketch10.addConstraint(Sketcher.Constraint("Symmetric", 14, 2, 28, 2, -2))
sketch10.addConstraint(Sketcher.Constraint("Symmetric", 12, 2, 30, 2, -2))
sketch10.addConstraint(Sketcher.Constraint("Horizontal", 6, 2, 11, 2))
sketch10.addConstraint(Sketcher.Constraint("Horizontal", 4, 2, 13, 2))
sketch10.addConstraint(Sketcher.Constraint("Horizontal", 2, 2, 15, 2))
sketch10.addConstraint(Sketcher.Constraint("Vertical", 3, 2, 6, 2))
sketch10.addConstraint(Sketcher.Constraint("Vertical", 11, 2, 14, 2))
sketch10.addConstraint(Sketcher.Constraint("Equal", 6, 12))
sketch10.addConstraint(Sketcher.Constraint("Equal", 2, 16))
sketch10.addConstraint(Sketcher.Constraint("Radius", 8, 1.0))
sketch10.addConstraint(Sketcher.Constraint("DistanceX", 0, 1, 0, 2, 20.0))
sketch10.addConstraint(Sketcher.Constraint("DistanceX", 9, 2, 9, 1, 1.0))
sketch10.addConstraint(Sketcher.Constraint("DistanceY", 1, 1, 1, 2, 3.0))
sketch10.addConstraint(Sketcher.Constraint("DistanceY", 3, 1, 3, 2, 4.0))
sketch10.addConstraint(Sketcher.Constraint("DistanceX", 8, 3, -1, 1, 29.0))
sketch10.addConstraint(Sketcher.Constraint("DistanceY", 0, 2, 8, 3, 14.0))
sketch10.addConstraint(Sketcher.Constraint("DistanceX", 4, 1, 4, 2, 1.35))
sketch10.addConstraint(Sketcher.Constraint("DistanceY", 5, 1, 5, 2, 2.27))
sketch10.addConstraint(Sketcher.Constraint("DistanceY", 8, 3, -1, 1, 33.5))
sketch10.setExpression("Constraints[86]", "Params.sketch10_radius")
sketch10.setExpression("Constraints[87]", "Params.sketch10_width")
sketch10.setExpression("Constraints[88]", "Params.sketch10_width2")
sketch10.setExpression("Constraints[89]", "Params.sketch10_height")
sketch10.setExpression("Constraints[90]", "Params.sketch10_height2")
pocket8 = body.newObject("PartDesign::Pocket", "Pocket007")
pocket8.Profile = sketch10
pocket8.Type = "ThroughAll"
pocket8.Midplane = True
doc.recompute()

fillet = body.newObject("PartDesign::Fillet", "Fillet")
fillet.Base = (pocket8, edges_at(pocket8, [
    (16, -47.5, 0),
    (13, -47.5, 0),
    (-13, -47.5, 0),
    (-16, -47.5, 0),
    (3, -47.5, 0),
    (-3, -47.5, 0),
]))
fillet.setExpression("Radius", "Params.fillet_radius")
doc.recompute()

fillet2 = body.newObject("PartDesign::Fillet", "Fillet001")
fillet2.Base = (fillet, edges_at(fillet, [(-53, 47.5, 0), (53, 47.5, 0)]))
fillet2.setExpression("Radius", "Params.fillet2_radius")

doc.recompute()
